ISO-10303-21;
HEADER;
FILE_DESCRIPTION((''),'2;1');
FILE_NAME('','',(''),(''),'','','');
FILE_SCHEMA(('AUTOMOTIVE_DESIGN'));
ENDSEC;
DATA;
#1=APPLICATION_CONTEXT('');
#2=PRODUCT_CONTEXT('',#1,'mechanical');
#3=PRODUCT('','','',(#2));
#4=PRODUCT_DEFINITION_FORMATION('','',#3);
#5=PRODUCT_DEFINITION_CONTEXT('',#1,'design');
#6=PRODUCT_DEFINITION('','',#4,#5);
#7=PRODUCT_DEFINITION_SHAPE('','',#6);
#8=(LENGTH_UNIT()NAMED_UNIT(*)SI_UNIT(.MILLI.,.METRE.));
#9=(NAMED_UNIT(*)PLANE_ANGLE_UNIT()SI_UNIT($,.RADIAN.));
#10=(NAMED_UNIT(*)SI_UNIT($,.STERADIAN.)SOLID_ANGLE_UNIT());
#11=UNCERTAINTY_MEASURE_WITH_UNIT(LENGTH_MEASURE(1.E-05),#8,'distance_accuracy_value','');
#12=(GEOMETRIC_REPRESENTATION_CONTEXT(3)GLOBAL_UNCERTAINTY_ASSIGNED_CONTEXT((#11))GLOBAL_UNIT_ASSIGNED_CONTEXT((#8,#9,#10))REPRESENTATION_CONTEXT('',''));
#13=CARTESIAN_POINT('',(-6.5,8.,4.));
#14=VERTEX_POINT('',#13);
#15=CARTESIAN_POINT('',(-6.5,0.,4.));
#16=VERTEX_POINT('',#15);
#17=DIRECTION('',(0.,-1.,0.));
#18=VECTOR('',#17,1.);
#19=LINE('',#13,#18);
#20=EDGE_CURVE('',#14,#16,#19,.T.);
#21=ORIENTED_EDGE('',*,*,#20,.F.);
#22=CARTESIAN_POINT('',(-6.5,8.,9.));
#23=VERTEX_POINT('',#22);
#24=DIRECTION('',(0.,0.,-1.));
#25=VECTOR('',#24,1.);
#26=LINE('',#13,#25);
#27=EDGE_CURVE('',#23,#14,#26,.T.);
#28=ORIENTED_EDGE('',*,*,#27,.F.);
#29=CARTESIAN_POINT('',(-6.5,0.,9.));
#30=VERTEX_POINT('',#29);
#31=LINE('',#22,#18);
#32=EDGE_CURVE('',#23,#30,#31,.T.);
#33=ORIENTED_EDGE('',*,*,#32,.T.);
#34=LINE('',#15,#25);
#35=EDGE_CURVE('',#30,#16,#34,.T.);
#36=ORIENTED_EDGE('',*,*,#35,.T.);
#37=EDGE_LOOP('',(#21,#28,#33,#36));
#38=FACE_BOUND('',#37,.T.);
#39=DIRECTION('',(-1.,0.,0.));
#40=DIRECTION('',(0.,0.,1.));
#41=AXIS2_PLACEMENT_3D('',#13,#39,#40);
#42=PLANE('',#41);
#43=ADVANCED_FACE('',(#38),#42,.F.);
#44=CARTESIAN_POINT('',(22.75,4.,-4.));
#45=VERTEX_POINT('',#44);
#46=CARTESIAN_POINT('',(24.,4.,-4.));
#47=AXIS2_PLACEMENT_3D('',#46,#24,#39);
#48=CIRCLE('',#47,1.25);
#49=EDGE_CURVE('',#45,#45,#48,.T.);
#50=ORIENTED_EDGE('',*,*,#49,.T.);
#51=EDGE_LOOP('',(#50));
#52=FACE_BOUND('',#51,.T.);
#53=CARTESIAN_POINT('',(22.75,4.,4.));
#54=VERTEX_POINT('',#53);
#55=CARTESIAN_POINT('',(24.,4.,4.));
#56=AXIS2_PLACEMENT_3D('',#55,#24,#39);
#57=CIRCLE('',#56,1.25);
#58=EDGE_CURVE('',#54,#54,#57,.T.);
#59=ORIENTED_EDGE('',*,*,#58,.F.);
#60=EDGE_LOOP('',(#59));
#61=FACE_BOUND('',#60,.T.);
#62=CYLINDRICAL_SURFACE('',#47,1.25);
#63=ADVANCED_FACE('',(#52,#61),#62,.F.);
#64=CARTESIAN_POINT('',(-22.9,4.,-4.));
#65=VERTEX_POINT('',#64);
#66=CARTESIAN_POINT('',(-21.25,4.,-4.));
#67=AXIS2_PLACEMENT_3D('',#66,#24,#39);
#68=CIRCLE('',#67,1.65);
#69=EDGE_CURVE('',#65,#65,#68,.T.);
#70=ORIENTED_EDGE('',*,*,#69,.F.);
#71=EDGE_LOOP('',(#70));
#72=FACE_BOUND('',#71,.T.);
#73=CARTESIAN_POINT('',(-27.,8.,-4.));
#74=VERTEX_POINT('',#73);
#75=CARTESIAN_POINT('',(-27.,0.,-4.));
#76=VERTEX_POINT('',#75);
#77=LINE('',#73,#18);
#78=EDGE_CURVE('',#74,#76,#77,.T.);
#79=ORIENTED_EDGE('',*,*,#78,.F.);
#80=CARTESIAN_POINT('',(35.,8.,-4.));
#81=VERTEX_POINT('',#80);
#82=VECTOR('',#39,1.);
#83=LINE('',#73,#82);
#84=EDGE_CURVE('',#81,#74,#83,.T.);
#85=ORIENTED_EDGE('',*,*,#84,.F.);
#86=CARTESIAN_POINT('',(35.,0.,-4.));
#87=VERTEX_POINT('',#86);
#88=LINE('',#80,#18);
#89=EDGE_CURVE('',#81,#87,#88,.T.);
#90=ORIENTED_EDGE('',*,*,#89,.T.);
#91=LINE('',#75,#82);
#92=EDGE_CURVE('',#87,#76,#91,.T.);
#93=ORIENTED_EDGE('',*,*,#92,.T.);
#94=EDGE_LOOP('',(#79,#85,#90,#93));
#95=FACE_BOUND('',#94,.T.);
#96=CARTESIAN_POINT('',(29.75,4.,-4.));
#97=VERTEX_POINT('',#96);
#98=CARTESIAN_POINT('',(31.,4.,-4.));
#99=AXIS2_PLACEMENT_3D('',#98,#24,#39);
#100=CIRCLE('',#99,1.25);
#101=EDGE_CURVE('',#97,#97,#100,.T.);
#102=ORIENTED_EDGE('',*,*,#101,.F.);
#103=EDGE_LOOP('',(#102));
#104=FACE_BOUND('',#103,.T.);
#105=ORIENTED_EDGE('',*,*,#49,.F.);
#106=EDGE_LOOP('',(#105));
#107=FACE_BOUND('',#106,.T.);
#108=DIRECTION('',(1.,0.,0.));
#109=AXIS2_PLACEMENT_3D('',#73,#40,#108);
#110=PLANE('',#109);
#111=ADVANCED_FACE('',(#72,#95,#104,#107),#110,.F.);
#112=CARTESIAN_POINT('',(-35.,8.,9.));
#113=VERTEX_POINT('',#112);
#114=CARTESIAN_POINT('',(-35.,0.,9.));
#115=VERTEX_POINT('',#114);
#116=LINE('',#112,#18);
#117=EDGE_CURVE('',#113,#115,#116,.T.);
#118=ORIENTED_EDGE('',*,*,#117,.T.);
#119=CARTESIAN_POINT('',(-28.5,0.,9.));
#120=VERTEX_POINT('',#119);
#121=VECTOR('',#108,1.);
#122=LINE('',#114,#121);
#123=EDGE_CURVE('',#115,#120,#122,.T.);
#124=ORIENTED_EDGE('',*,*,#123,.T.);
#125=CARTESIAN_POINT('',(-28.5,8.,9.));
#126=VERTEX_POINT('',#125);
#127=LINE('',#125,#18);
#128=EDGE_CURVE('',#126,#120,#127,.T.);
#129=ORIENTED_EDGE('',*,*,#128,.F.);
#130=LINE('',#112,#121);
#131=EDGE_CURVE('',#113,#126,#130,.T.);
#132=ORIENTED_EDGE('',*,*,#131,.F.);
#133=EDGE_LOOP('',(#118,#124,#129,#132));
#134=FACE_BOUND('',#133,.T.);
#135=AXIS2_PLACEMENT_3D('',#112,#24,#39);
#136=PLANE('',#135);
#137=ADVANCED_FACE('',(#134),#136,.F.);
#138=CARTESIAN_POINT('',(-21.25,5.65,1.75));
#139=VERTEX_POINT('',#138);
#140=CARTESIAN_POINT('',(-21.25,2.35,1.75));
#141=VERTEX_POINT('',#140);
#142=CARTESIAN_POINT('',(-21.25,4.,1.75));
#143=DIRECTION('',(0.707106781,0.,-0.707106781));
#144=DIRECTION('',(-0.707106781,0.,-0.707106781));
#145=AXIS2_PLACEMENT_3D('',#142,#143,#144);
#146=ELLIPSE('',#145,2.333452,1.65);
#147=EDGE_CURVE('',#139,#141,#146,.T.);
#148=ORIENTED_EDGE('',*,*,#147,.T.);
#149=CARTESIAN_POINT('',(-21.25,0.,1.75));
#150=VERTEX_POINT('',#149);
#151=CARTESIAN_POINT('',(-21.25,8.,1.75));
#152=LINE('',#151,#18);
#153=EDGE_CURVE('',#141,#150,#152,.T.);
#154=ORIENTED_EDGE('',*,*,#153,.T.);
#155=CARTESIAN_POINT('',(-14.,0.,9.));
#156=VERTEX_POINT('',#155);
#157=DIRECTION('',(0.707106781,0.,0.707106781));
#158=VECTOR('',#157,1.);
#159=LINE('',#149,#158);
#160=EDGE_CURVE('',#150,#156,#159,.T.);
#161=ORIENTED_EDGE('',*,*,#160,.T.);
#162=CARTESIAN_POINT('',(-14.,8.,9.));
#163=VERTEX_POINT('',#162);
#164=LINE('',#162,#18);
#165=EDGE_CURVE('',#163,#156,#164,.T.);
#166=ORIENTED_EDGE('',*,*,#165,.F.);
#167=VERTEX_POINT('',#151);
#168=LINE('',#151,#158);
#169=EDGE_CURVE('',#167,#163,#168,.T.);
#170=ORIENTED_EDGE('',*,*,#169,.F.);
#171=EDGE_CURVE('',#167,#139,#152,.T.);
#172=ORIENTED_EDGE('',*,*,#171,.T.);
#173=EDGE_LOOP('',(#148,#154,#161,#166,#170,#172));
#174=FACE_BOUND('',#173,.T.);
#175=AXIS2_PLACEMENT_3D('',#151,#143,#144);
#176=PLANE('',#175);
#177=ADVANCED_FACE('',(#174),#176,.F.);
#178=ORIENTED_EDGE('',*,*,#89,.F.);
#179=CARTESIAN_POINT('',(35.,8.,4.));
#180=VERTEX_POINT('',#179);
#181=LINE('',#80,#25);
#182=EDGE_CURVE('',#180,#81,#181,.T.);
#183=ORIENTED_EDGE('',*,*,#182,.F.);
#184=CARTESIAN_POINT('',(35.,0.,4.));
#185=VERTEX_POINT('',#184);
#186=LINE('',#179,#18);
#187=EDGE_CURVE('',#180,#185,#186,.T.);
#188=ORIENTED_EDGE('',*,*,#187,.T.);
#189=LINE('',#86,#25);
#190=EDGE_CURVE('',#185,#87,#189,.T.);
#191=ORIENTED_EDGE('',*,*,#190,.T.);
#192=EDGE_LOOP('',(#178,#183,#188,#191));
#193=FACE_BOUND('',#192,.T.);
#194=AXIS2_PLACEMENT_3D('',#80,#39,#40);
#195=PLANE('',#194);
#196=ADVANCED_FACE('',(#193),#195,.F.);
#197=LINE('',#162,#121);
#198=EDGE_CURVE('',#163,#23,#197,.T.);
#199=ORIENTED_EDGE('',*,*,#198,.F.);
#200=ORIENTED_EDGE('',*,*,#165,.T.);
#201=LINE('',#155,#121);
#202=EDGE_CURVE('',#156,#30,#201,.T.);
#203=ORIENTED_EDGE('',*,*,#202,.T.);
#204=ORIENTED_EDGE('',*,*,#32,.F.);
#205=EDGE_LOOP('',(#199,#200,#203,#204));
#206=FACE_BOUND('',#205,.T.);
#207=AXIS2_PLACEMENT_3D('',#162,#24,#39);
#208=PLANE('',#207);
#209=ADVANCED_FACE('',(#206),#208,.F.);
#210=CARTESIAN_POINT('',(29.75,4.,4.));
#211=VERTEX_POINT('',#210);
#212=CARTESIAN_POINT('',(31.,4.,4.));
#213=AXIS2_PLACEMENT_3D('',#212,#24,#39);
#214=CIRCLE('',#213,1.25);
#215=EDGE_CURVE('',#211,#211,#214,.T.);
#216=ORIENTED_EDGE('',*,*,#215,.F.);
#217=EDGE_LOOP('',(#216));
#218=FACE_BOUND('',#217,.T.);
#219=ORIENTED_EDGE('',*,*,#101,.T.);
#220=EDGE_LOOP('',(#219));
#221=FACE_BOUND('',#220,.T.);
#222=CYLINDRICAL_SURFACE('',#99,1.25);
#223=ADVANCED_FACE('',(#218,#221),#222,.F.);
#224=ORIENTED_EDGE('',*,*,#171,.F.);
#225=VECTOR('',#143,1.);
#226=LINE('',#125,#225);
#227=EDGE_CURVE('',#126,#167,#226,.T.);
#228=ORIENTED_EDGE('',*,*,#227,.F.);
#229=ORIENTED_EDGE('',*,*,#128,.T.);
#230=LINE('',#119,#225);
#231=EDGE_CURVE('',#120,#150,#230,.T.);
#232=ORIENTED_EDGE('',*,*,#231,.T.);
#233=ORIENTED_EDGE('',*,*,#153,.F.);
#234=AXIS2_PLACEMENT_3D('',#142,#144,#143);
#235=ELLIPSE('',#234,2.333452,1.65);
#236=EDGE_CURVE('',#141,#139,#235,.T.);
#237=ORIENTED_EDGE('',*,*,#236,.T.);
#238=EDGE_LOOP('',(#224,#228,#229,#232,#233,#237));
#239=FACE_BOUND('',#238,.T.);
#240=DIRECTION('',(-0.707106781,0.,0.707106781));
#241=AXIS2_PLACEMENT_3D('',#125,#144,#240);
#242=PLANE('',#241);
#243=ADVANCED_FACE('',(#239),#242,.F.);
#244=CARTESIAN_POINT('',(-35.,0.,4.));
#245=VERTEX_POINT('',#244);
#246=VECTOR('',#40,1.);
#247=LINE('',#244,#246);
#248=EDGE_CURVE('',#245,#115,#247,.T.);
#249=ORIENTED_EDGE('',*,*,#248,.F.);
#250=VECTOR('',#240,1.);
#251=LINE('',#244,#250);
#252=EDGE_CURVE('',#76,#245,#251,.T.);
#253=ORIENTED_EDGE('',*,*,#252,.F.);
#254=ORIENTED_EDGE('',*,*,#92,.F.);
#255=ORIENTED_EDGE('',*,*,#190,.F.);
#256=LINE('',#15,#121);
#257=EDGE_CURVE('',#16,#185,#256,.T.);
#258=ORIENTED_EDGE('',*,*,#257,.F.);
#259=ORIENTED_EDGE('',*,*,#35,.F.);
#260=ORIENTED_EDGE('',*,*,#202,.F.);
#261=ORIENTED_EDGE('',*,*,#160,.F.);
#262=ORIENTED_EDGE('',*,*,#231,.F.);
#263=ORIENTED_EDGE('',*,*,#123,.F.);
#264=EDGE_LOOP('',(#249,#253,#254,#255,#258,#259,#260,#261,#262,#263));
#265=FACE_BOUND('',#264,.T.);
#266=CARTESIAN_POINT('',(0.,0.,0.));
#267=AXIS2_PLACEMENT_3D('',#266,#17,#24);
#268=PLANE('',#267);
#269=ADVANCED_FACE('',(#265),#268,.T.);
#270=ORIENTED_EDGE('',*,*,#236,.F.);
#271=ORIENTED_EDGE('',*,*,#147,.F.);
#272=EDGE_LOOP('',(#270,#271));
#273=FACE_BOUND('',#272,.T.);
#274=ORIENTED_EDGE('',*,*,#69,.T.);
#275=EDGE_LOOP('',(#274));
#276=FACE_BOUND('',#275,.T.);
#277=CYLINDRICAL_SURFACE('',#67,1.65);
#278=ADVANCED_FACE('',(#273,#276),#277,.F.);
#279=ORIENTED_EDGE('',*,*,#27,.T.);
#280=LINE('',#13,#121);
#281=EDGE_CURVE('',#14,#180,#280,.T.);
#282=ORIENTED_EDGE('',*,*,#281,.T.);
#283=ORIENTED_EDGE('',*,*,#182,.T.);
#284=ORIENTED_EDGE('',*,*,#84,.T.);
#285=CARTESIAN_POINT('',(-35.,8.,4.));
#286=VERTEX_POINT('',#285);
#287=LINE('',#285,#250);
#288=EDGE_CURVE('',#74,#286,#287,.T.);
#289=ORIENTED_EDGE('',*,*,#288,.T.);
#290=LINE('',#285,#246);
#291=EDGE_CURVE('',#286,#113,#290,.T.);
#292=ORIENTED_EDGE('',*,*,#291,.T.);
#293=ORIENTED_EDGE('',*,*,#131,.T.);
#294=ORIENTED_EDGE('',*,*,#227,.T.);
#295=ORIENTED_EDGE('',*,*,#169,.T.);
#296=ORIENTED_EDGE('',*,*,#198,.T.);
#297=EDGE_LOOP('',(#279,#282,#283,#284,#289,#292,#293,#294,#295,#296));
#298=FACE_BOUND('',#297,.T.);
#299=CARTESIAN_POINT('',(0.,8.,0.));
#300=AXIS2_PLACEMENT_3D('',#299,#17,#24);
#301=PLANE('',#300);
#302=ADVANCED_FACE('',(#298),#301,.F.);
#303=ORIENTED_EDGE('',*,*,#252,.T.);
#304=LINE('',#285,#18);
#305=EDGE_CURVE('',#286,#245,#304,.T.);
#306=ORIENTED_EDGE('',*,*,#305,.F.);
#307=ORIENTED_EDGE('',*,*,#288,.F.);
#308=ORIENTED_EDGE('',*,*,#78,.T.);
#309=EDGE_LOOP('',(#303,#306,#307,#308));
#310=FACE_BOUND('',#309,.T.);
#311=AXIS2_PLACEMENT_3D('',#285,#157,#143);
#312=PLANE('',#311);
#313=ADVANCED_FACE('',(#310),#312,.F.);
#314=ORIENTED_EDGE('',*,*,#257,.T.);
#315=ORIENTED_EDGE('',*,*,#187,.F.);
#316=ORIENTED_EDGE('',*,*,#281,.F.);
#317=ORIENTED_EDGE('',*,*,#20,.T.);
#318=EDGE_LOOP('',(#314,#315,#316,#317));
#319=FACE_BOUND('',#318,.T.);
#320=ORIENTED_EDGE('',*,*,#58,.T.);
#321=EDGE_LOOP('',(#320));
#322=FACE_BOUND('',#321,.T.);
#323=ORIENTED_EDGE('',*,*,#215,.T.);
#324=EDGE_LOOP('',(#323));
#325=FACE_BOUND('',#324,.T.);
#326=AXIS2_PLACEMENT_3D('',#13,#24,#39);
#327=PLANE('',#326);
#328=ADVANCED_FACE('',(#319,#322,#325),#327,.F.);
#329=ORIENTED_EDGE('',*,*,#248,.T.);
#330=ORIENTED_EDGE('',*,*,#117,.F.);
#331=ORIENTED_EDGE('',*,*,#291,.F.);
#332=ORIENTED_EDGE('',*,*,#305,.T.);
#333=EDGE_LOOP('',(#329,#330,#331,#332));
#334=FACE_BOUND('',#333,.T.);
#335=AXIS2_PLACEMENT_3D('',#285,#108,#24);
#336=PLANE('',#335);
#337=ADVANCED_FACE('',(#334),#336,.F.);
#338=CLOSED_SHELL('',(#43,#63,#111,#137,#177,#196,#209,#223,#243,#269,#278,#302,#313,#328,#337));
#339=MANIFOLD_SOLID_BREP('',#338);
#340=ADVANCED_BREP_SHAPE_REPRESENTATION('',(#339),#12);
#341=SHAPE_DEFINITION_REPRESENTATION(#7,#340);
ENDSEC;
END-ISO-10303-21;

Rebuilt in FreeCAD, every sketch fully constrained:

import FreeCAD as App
import Part
import Sketcher
from FreeCAD import Vector
Q = App.Units.Quantity


def add_polygon(sketch, points):
    """Adds a closed chain of lines whose ends are joined by coincident constraints."""
    first, n = sketch.GeometryCount, len(points)
    for a, b in zip(points, points[1:] + points[:1]):
        sketch.addGeometry(Part.LineSegment(App.Vector(*a, 0), App.Vector(*b, 0)), False)
    for i in range(n):
        sketch.addConstraint(Sketcher.Constraint("Coincident", first + i, 2, first + (i + 1) % n, 1))

doc = App.newDocument("Part")
params = doc.addObject("Spreadsheet::Sheet", "Params")
for row, (alias, value) in enumerate([
    ("sketch1_width", "62 mm"),
    ("sketch1_height", "5 mm"),
    ("sketch1_height2", "8 mm"),
    ("sketch1_width2", "6.5 mm"),
    ("sketch1_width3", "7.5 mm"),
    ("pad1_length", "8 mm"),
    ("sketch2_diameter", "3.3 mm"),
    ("hole_diameter", "3.3 mm"),
    ("hole_depth", "11.5 mm"),
    ("sketch3_diameter", "2.5 mm"),
    ("hole2_diameter", "2.5 mm"),
    ("hole2_depth", "8.5 mm"),
], start=1):
    params.set(f"A{row}", alias)
    params.set(f"B{row}", "=" + value)
    params.setAlias(f"B{row}", alias)

body = doc.addObject("PartDesign::Body", "Body")

# Sketch on XZ plane
sketch1 = doc.addObject("Sketcher::SketchObject", "Sketch")
body.addObject(sketch1)
sketch1.AttachmentSupport = (doc.XZ_Plane, [""])
sketch1.MapMode = "FlatFace"
add_polygon(sketch1, [(-27, -4), (-35, 4), (-35, 9), (-28, 9), (-21, 2), (-14, 9), (-6, 9), (-6, 4), (35, 4), (35, -4)])  # lines 0-9
sketch1.addConstraint([
    Sketcher.Constraint("Vertical", 1),
    Sketcher.Constraint("Horizontal", 2),
    Sketcher.Constraint("Horizontal", 5),
    Sketcher.Constraint("Vertical", 6),
    Sketcher.Constraint("Horizontal", 7),
    Sketcher.Constraint("Vertical", 8),
    Sketcher.Constraint("Horizontal", 9),
    Sketcher.Constraint("Symmetric", 0, 2, 8, 2, -1, 1),
    Sketcher.Constraint("Parallel", 0, 3),
    Sketcher.Constraint("Perpendicular", 3, 4),
    Sketcher.Constraint("Horizontal", 2, 2, 4, 2),
    Sketcher.Constraint("Horizontal", 0, 2, 6, 2),
    Sketcher.Constraint("Equal", 3, 4),
    Sketcher.Constraint("DistanceX", 9, 2, 9, 1, Q("62 mm")),
    Sketcher.Constraint("DistanceY", 1, 1, 1, 2, Q("5 mm")),
    Sketcher.Constraint("DistanceY", 8, 2, 8, 1, Q("8 mm")),
    Sketcher.Constraint("DistanceX", 2, 1, 2, 2, Q("6.5 mm")),
    Sketcher.Constraint("DistanceX", 5, 1, 5, 2, Q("7.5 mm")),
    Sketcher.Constraint("DistanceX", 7, 1, 7, 2, Q("41.5 mm")),
])
sketch1.setExpression("Constraints[23]", "Params.sketch1_width")
sketch1.setExpression("Constraints[24]", "Params.sketch1_height")
sketch1.setExpression("Constraints[25]", "Params.sketch1_height2")
sketch1.setExpression("Constraints[26]", "Params.sketch1_width2")
sketch1.setExpression("Constraints[27]", "Params.sketch1_width3")
pad1 = doc.addObject("PartDesign::Pad", "Pad")
body.addObject(pad1)
pad1.Profile = sketch1
pad1.setExpression("Length", "Params.pad1_length")
pad1.Reversed = True

# Sketch on XY plane
sketch2 = doc.addObject("Sketcher::SketchObject", "Sketch001")
body.addObject(sketch2)
sketch2.AttachmentSupport = (doc.XY_Plane, [""])
sketch2.MapMode = "FlatFace"
sketch2.AttachmentOffset = App.Placement(Vector(0, 0, -4), App.Rotation())
sketch2.addGeometry(Part.Circle(Vector(-21.2, 4, 0), Vector(0, 0, 1), 1.6), False)
sketch2.addConstraint([
    Sketcher.Constraint("Diameter", 0, Q("3.3 mm")),
    Sketcher.Constraint("DistanceY", -1, 1, 0, 3, Q("4 mm")),
    Sketcher.Constraint("DistanceX", 0, 3, -1, 1, Q("21.25 mm")),
])
sketch2.setExpression("Constraints[0]", "Params.sketch2_diameter")
doc.recompute()
hole = doc.addObject("PartDesign::Hole", "Hole")
body.addObject(hole)
hole.Profile = sketch2
hole.ThreadType = "None"
hole.setExpression("Diameter", "Params.hole_diameter")
hole.DepthType = "Dimension"
hole.setExpression("Depth", "Params.hole_depth")
hole.DrillPoint = "Angled"
hole.DrillPointAngle = 118
hole.Reversed = True

# Sketch on XY plane
sketch3 = doc.addObject("Sketcher::SketchObject", "Sketch002")
body.addObject(sketch3)
sketch3.AttachmentSupport = (doc.XY_Plane, [""])
sketch3.MapMode = "FlatFace"
sketch3.AttachmentOffset = App.Placement(Vector(0, 0, -4), App.Rotation())
sketch3.addGeometry([
    Part.Circle(Vector(31, 4, 0), Vector(0, 0, 1), 1.2),
    Part.Circle(Vector(24, 4, 0), Vector(0, 0, 1), 1.2),
], False)
sketch3.addConstraint([
    Sketcher.Constraint("Equal", 0, 1),
    Sketcher.Constraint("Horizontal", 0, 3, 1, 3),
    Sketcher.Constraint("Diameter", 0, Q("2.5 mm")),
    Sketcher.Constraint("DistanceX", -1, 1, 0, 3, Q("31 mm")),
    Sketcher.Constraint("DistanceY", -1, 1, 0, 3, Q("4 mm")),
    Sketcher.Constraint("DistanceX", -1, 1, 1, 3, Q("24 mm")),
])
sketch3.setExpression("Constraints[2]", "Params.sketch3_diameter")
doc.recompute()
hole2 = doc.addObject("PartDesign::Hole", "Hole001")
body.addObject(hole2)
hole2.Profile = sketch3
hole2.ThreadType = "None"
hole2.setExpression("Diameter", "Params.hole2_diameter")
hole2.DepthType = "Dimension"
hole2.setExpression("Depth", "Params.hole2_depth")
hole2.DrillPoint = "Angled"
hole2.DrillPointAngle = 118
hole2.Reversed = True

doc.recompute()
